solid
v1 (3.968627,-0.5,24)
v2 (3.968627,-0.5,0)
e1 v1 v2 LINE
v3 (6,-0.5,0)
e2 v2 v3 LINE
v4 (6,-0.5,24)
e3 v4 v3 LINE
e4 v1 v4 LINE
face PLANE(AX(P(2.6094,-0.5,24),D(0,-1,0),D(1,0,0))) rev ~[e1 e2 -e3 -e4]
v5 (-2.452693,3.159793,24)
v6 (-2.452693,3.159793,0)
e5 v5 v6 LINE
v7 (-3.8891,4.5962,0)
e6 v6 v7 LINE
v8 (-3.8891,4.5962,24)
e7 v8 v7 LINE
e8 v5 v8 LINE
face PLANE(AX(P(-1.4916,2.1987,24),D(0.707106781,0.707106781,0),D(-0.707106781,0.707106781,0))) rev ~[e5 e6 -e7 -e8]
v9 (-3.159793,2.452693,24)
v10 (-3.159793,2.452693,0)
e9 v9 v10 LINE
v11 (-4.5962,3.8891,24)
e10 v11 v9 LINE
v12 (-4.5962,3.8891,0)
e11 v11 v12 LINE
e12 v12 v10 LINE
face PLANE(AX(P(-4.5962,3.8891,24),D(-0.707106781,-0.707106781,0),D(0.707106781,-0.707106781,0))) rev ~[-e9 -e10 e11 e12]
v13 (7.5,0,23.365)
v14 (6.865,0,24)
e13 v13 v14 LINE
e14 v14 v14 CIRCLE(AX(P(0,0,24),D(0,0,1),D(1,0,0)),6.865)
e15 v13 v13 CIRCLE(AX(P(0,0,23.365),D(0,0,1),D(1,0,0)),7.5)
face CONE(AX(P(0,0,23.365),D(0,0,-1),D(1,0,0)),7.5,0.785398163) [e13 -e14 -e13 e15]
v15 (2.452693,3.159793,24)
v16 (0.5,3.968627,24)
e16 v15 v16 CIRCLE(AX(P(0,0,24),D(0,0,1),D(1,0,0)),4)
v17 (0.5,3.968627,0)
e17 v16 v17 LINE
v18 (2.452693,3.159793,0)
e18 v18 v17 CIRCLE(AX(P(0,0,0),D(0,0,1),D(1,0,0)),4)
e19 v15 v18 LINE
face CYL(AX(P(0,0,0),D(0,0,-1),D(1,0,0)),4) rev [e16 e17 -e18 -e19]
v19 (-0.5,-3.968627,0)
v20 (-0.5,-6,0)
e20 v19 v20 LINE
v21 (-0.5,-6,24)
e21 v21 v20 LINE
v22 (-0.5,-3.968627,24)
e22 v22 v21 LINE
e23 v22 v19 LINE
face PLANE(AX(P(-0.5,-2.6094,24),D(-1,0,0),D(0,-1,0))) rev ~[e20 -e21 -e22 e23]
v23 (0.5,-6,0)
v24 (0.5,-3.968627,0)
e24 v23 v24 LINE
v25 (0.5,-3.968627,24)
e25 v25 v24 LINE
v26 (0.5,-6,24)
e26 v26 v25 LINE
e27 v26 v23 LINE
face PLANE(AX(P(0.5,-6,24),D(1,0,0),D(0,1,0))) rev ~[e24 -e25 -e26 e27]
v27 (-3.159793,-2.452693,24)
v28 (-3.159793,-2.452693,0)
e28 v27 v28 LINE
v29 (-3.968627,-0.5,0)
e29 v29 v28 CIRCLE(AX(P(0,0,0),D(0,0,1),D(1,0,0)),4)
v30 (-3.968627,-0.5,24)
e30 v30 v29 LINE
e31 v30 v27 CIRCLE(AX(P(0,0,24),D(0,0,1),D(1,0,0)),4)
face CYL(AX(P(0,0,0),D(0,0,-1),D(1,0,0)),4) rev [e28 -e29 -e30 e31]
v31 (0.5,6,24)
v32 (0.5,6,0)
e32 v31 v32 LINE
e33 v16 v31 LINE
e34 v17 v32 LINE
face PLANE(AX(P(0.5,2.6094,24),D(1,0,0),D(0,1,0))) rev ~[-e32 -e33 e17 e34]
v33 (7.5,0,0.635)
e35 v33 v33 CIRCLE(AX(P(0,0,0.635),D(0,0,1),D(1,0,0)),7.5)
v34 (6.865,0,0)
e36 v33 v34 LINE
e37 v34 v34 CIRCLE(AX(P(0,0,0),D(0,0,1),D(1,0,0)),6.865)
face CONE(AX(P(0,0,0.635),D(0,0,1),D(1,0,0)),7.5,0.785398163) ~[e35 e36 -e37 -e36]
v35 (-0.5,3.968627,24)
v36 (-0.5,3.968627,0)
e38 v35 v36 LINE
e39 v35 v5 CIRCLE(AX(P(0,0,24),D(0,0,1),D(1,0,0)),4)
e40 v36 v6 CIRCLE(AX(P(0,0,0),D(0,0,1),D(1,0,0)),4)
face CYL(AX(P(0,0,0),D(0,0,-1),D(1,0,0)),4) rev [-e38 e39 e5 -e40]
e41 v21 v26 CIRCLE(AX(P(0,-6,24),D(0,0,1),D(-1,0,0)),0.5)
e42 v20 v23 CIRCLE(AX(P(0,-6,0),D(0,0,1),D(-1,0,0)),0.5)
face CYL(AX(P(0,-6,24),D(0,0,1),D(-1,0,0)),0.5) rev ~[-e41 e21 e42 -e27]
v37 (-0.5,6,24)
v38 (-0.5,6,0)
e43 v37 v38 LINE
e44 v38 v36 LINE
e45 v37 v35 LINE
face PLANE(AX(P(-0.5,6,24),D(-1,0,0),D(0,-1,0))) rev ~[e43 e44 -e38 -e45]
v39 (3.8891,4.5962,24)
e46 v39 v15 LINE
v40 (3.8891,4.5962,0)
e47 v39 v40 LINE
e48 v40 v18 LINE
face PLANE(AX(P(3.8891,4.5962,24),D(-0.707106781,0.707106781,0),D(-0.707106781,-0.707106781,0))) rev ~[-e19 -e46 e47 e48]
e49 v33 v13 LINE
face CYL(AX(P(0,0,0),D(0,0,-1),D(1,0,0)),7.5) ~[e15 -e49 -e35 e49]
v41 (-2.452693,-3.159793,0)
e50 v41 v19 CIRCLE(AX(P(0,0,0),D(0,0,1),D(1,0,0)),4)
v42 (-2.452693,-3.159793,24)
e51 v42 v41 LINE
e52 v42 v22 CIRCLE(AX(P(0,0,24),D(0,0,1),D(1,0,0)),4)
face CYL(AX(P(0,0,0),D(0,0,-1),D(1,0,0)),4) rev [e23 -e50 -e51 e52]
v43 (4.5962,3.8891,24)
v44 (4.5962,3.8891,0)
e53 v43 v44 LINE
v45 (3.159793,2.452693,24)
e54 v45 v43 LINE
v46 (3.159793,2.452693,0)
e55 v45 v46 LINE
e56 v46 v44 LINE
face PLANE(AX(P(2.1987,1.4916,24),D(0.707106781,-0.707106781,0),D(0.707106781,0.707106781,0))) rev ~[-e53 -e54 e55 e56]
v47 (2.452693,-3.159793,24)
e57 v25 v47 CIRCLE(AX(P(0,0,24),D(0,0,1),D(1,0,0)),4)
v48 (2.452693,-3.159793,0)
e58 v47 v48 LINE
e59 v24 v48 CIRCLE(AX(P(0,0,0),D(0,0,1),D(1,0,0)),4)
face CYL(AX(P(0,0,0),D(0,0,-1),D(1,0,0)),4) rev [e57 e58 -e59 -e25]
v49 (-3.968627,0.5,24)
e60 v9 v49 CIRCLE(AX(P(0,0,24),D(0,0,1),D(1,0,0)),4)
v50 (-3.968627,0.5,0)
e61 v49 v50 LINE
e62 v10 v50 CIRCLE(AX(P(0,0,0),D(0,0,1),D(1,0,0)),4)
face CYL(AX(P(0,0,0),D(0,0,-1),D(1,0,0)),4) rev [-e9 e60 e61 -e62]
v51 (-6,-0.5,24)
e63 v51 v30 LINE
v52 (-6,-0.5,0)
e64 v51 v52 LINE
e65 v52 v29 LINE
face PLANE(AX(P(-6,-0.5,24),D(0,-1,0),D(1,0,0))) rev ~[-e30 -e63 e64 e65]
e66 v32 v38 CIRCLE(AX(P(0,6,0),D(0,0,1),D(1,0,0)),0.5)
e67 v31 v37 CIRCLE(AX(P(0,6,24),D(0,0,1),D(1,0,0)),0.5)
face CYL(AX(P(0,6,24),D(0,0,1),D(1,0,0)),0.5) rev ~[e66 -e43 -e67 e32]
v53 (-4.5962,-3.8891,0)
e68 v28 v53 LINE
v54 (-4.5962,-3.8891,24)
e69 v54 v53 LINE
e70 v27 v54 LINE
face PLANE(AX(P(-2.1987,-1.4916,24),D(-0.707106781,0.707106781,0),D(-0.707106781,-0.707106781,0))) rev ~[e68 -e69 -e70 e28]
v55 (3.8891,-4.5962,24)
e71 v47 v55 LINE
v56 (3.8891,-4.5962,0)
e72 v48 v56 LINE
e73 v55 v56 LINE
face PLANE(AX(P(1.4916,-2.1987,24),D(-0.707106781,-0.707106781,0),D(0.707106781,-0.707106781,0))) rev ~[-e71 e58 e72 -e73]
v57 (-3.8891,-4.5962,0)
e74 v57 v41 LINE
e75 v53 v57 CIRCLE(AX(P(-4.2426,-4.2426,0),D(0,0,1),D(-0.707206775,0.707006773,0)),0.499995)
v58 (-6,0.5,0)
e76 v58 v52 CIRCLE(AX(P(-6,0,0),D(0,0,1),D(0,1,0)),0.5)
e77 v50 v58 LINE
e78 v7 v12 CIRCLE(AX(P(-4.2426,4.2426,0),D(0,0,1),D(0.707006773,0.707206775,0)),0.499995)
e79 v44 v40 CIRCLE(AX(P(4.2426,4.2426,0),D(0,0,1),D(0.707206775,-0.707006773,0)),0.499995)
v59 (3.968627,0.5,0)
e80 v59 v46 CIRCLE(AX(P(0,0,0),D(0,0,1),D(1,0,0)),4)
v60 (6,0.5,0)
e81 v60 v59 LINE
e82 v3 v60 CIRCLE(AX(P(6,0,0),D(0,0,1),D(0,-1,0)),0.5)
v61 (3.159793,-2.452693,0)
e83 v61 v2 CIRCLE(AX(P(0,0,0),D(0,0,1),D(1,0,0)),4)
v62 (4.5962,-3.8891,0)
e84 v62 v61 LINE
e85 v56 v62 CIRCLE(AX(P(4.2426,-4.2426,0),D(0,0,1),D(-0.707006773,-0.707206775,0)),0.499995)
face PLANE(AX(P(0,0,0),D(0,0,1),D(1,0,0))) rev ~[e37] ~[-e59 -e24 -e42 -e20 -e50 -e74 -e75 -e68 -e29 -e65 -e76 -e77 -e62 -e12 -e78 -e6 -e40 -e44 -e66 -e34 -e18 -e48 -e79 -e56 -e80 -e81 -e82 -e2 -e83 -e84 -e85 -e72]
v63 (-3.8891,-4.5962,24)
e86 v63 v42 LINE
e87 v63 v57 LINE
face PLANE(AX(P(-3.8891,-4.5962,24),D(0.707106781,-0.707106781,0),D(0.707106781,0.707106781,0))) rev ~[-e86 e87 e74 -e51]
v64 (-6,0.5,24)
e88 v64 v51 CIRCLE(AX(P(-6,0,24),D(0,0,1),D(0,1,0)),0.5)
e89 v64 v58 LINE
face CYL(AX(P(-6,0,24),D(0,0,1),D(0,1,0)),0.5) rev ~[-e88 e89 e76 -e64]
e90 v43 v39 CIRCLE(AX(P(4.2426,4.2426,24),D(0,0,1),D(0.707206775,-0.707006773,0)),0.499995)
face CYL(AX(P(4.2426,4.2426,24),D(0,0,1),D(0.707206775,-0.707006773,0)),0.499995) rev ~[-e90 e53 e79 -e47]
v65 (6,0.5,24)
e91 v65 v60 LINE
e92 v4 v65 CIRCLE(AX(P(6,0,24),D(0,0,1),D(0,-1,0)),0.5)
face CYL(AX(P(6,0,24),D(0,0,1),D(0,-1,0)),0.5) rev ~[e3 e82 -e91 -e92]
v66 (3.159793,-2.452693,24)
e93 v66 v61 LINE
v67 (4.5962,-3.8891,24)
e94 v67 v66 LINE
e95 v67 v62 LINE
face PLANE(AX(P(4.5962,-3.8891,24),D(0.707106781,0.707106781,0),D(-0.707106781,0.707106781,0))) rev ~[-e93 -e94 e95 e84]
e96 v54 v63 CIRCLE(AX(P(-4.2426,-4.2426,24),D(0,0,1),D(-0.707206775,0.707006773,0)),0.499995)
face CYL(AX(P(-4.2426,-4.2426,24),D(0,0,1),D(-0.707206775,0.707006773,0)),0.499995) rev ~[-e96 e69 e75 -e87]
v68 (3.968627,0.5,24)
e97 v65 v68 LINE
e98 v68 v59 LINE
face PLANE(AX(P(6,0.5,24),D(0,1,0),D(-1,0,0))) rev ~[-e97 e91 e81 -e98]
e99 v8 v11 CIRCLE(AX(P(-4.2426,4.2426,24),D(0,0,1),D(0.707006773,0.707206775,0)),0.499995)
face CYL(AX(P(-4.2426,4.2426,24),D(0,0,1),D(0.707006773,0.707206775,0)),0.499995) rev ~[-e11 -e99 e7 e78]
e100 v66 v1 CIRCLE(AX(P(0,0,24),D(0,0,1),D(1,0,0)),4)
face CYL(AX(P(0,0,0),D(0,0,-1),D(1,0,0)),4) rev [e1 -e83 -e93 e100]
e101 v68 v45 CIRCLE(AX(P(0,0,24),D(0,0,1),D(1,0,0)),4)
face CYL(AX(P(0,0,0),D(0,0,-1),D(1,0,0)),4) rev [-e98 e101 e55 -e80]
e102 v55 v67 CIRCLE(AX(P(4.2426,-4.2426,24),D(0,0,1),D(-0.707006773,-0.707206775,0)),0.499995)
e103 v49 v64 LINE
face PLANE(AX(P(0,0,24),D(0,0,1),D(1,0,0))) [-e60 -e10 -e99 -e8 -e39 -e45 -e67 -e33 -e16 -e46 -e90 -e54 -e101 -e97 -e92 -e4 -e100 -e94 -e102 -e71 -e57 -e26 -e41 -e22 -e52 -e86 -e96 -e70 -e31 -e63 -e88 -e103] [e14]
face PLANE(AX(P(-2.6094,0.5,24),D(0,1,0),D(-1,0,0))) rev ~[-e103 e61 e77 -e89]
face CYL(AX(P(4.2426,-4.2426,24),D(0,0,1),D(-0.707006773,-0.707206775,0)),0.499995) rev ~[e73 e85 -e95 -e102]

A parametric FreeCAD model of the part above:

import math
import FreeCAD as App
import Part
import Sketcher

V = App.Vector


def edges_at(feature, points):
    """Names of the edges that pass closest to the given points."""
    edges = feature.Shape.Edges
    near = lambda p: min(range(len(edges)), key=lambda i: edges[i].distToShape(Part.Vertex(*p))[0])
    return sorted({f"Edge{near(p) + 1}" for p in points})

doc = App.newDocument("Part")
body = doc.addObject("PartDesign::Body", "Body")

sketch1 = doc.addObject("Sketcher::SketchObject", "Sketch")
body.addObject(sketch1)
sketch1.AttachmentSupport = (doc.XY_Plane, [""])
sketch1.MapMode = "FlatFace"
sketch1.addGeometry([
    Part.Circle(V(0, 0, 0), V(0, 0, 1), 7.5),
    Part.Circle(V(0, 0, 0), V(0, 0, 1), 4),
], False)
sketch1.addConstraint([
    Sketcher.Constraint("Coincident", 0, 3, -1, 1),
    Sketcher.Constraint("Coincident", 1, 3, -1, 1),
    Sketcher.Constraint("Diameter", 0, 15.0),
    Sketcher.Constraint("Diameter", 1, 8.0),
])
pad1 = doc.addObject("PartDesign::Pad", "Pad")
body.addObject(pad1)
pad1.Profile = sketch1
pad1.Length = 24

sketch2 = doc.addObject("Sketcher::SketchObject", "Sketch001")
body.addObject(sketch2)
sketch2.AttachmentSupport = (doc.XY_Plane, [""])
sketch2.MapMode = "FlatFace"
sketch2.AttachmentOffset = App.Placement(V(0, 0, 24), App.Rotation())
sketch2.addGeometry([
    Part.LineSegment(V(0.5, 2.6094, 0), V(0.5, 6, 0)),
    Part.ArcOfCircle(Part.Circle(V(0, 6, 0), V(0, 0, 1), 0.5), math.radians(0), math.radians(180)),
    Part.LineSegment(V(-0.5, 6, 0), V(-0.5, 2.6094, 0)),
    Part.LineSegment(V(-0.5, 2.6094, 0), V(0.5, 2.6094, 0)),
    Part.ArcOfCircle(Part.Circle(V(-4.2426, 4.2426, 0), V(0, 0, 1), 0.499995), math.radians(45.008103), math.radians(224.991897)),
    Part.LineSegment(V(-4.5962, 3.8891, 0), V(-2.1987, 1.4916, 0)),
    Part.LineSegment(V(-2.1987, 1.4916, 0), V(-1.4916, 2.1987, 0)),
    Part.LineSegment(V(-1.4916, 2.1987, 0), V(-3.8891, 4.5962, 0)),
    Part.ArcOfCircle(Part.Circle(V(-6, 0, 0), V(0, 0, 1), 0.5), math.radians(90), math.radians(270)),
    Part.LineSegment(V(-6, -0.5, 0), V(-2.6094, -0.5, 0)),
    Part.LineSegment(V(-2.6094, -0.5, 0), V(-2.6094, 0.5, 0)),
    Part.LineSegment(V(-2.6094, 0.5, 0), V(-6, 0.5, 0)),
    Part.ArcOfCircle(Part.Circle(V(-4.2426, -4.2426, 0), V(0, 0, 1), 0.499995), math.radians(135.008103), math.radians(314.991897)),
    Part.LineSegment(V(-3.8891, -4.5962, 0), V(-1.4916, -2.1987, 0)),
    Part.LineSegment(V(-1.4916, -2.1987, 0), V(-2.1987, -1.4916, 0)),
    Part.LineSegment(V(-2.1987, -1.4916, 0), V(-4.5962, -3.8891, 0)),
    Part.ArcOfCircle(Part.Circle(V(0, -6, 0), V(0, 0, 1), 0.5), math.radians(180), math.radians(360)),
    Part.LineSegment(V(0.5, -6, 0), V(0.5, -2.6094, 0)),
    Part.LineSegment(V(0.5, -2.6094, 0), V(-0.5, -2.6094, 0)),
    Part.LineSegment(V(-0.5, -2.6094, 0), V(-0.5, -6, 0)),
    Part.ArcOfCircle(Part.Circle(V(4.2426, -4.2426, 0), V(0, 0, 1), 0.499995), math.radians(-134.991897), math.radians(44.991897)),
    Part.LineSegment(V(4.5962, -3.8891, 0), V(2.1987, -1.4916, 0)),
    Part.LineSegment(V(2.1987, -1.4916, 0), V(1.4916, -2.1987, 0)),
    Part.LineSegment(V(1.4916, -2.1987, 0), V(3.8891, -4.5962, 0)),
    Part.ArcOfCircle(Part.Circle(V(6, 0, 0), V(0, 0, 1), 0.5), math.radians(-90), math.radians(90)),
    Part.LineSegment(V(6, 0.5, 0), V(2.6094, 0.5, 0)),
    Part.LineSegment(V(2.6094, 0.5, 0), V(2.6094, -0.5, 0)),
    Part.LineSegment(V(2.6094, -0.5, 0), V(6, -0.5, 0)),
    Part.ArcOfCircle(Part.Circle(V(4.2426, 4.2426, 0), V(0, 0, 1), 0.499995), math.radians(-44.991897), math.radians(134.991897)),
    Part.LineSegment(V(3.8891, 4.5962, 0), V(1.4916, 2.1987, 0)),
    Part.LineSegment(V(1.4916, 2.1987, 0), V(2.1987, 1.4916, 0)),
    Part.LineSegment(V(2.1987, 1.4916, 0), V(4.5962, 3.8891, 0)),
], False)
sketch2.addConstraint([
    Sketcher.Constraint("Tangent", 0, 2, 1, 1),
    Sketcher.Constraint("Tangent", 1, 2, 2, 1),
    Sketcher.Constraint("Coincident", 2, 2, 3, 1),
    Sketcher.Constraint("Coincident", 3, 2, 0, 1),
    Sketcher.Constraint("Tangent", 4, 2, 5, 1),
    Sketcher.Constraint("Coincident", 5, 2, 6, 1),
    Sketcher.Constraint("Coincident", 6, 2, 7, 1),
    Sketcher.Constraint("Tangent", 7, 2, 4, 1),
    Sketcher.Constraint("Tangent", 8, 2, 9, 1),
    Sketcher.Constraint("Coincident", 9, 2, 10, 1),
    Sketcher.Constraint("Coincident", 10, 2, 11, 1),
    Sketcher.Constraint("Tangent", 11, 2, 8, 1),
    Sketcher.Constraint("Tangent", 12, 2, 13, 1),
    Sketcher.Constraint("Coincident", 13, 2, 14, 1),
    Sketcher.Constraint("Coincident", 14, 2, 15, 1),
    Sketcher.Constraint("Tangent", 15, 2, 12, 1),
    Sketcher.Constraint("Tangent", 16, 2, 17, 1),
    Sketcher.Constraint("Coincident", 17, 2, 18, 1),
    Sketcher.Constraint("Coincident", 18, 2, 19, 1),
    Sketcher.Constraint("Tangent", 19, 2, 16, 1),
    Sketcher.Constraint("Tangent", 20, 2, 21, 1),
    Sketcher.Constraint("Coincident", 21, 2, 22, 1),
    Sketcher.Constraint("Coincident", 22, 2, 23, 1),
    Sketcher.Constraint("Tangent", 23, 2, 20, 1),
    Sketcher.Constraint("Tangent", 24, 2, 25, 1),
    Sketcher.Constraint("Coincident", 25, 2, 26, 1),
    Sketcher.Constraint("Coincident", 26, 2, 27, 1),
    Sketcher.Constraint("Tangent", 27, 2, 24, 1),
    Sketcher.Constraint("Tangent", 28, 2, 29, 1),
    Sketcher.Constraint("Coincident", 29, 2, 30, 1),
    Sketcher.Constraint("Coincident", 30, 2, 31, 1),
    Sketcher.Constraint("Tangent", 31, 2, 28, 1),
    Sketcher.Constraint("Vertical", 0),
    Sketcher.Constraint("Vertical", 2),
    Sketcher.Constraint("Horizontal", 3),
    Sketcher.Constraint("Horizontal", 9),
    Sketcher.Constraint("Vertical", 10),
    Sketcher.Constraint("Horizontal", 11),
    Sketcher.Constraint("Vertical", 17),
    Sketcher.Constraint("Horizontal", 18),
    Sketcher.Constraint("Vertical", 19),
    Sketcher.Constraint("Horizontal", 25),
    Sketcher.Constraint("Vertical", 26),
    Sketcher.Constraint("Horizontal", 27),
    Sketcher.Constraint("Equal", 1, 4),
    Sketcher.Constraint("Equal", 4, 8),
    Sketcher.Constraint("Equal", 8, 12),
    Sketcher.Constraint("Equal", 12, 16),
    Sketcher.Constraint("Equal", 16, 20),
    Sketcher.Constraint("Equal", 20, 24),
    Sketcher.Constraint("Equal", 24, 28),
    Sketcher.Constraint("Symmetric", 1, 3, 16, 3, -1, 1),
    Sketcher.Constraint("Symmetric", 4, 3, 20, 3, -1, 1),
    Sketcher.Constraint("Symmetric", 8, 3, 24, 3, -1, 1),
    Sketcher.Constraint("Symmetric", 12, 3, 28, 3, -1, 1),
    Sketcher.Constraint("Symmetric", 5, 2, 21, 2, -1, 1),
    Sketcher.Constraint("Symmetric", 6, 2, 22, 2, -1, 1),
    Sketcher.Constraint("Symmetric", 13, 2, 29, 2, -1, 1),
    Sketcher.Constraint("Symmetric", 14, 2, 30, 2, -1, 1),
    Sketcher.Constraint("Symmetric", 12, 3, 20, 3, -2),
    Sketcher.Constraint("Symmetric", 14, 2, 21, 2, -2),
    Sketcher.Constraint("Symmetric", 13, 2, 22, 2, -2),
    Sketcher.Constraint("Symmetric", 10, 2, 25, 2, -2),
    Sketcher.Constraint("Symmetric", 3, 2, 17, 2, -1),
    Sketcher.Constraint("Perpendicular", 5, 6),
    Sketcher.Constraint("Perpendicular", 6, 7),
    Sketcher.Constraint("Perpendicular", 7, 13),
    Sketcher.Constraint("Equal", 27, 0),
    Sketcher.Constraint("Radius", 1, 0.5),
    Sketcher.Constraint("DistanceY", -1, 1, 1, 3, 6.0),
    Sketcher.Constraint("DistanceX", 8, 3, -1, 1, 6.0),
    Sketcher.Constraint("DistanceX", 9, 1, 9, 2, 3.3906),
    Sketcher.Constraint("DistanceY", -1, 1, 4, 2, 3.889),
    Sketcher.Constraint("DistanceX", 7, 2, -1, 1, 3.889),
    Sketcher.Constraint("DistanceX", 4, 3, 5, 2, 2.044),
])
pocket1 = doc.addObject("PartDesign::Pocket", "Pocket")
body.addObject(pocket1)
pocket1.Profile = sketch2
pocket1.Length = 24
doc.recompute()

chamfer = doc.addObject("PartDesign::Chamfer", "Chamfer")
body.addObject(chamfer)
chamfer.Base = (pocket1, edges_at(pocket1, [(-7.5, 0, 24), (-7.5, 0, 0)]))
chamfer.Size = 0.635

doc.recompute()
